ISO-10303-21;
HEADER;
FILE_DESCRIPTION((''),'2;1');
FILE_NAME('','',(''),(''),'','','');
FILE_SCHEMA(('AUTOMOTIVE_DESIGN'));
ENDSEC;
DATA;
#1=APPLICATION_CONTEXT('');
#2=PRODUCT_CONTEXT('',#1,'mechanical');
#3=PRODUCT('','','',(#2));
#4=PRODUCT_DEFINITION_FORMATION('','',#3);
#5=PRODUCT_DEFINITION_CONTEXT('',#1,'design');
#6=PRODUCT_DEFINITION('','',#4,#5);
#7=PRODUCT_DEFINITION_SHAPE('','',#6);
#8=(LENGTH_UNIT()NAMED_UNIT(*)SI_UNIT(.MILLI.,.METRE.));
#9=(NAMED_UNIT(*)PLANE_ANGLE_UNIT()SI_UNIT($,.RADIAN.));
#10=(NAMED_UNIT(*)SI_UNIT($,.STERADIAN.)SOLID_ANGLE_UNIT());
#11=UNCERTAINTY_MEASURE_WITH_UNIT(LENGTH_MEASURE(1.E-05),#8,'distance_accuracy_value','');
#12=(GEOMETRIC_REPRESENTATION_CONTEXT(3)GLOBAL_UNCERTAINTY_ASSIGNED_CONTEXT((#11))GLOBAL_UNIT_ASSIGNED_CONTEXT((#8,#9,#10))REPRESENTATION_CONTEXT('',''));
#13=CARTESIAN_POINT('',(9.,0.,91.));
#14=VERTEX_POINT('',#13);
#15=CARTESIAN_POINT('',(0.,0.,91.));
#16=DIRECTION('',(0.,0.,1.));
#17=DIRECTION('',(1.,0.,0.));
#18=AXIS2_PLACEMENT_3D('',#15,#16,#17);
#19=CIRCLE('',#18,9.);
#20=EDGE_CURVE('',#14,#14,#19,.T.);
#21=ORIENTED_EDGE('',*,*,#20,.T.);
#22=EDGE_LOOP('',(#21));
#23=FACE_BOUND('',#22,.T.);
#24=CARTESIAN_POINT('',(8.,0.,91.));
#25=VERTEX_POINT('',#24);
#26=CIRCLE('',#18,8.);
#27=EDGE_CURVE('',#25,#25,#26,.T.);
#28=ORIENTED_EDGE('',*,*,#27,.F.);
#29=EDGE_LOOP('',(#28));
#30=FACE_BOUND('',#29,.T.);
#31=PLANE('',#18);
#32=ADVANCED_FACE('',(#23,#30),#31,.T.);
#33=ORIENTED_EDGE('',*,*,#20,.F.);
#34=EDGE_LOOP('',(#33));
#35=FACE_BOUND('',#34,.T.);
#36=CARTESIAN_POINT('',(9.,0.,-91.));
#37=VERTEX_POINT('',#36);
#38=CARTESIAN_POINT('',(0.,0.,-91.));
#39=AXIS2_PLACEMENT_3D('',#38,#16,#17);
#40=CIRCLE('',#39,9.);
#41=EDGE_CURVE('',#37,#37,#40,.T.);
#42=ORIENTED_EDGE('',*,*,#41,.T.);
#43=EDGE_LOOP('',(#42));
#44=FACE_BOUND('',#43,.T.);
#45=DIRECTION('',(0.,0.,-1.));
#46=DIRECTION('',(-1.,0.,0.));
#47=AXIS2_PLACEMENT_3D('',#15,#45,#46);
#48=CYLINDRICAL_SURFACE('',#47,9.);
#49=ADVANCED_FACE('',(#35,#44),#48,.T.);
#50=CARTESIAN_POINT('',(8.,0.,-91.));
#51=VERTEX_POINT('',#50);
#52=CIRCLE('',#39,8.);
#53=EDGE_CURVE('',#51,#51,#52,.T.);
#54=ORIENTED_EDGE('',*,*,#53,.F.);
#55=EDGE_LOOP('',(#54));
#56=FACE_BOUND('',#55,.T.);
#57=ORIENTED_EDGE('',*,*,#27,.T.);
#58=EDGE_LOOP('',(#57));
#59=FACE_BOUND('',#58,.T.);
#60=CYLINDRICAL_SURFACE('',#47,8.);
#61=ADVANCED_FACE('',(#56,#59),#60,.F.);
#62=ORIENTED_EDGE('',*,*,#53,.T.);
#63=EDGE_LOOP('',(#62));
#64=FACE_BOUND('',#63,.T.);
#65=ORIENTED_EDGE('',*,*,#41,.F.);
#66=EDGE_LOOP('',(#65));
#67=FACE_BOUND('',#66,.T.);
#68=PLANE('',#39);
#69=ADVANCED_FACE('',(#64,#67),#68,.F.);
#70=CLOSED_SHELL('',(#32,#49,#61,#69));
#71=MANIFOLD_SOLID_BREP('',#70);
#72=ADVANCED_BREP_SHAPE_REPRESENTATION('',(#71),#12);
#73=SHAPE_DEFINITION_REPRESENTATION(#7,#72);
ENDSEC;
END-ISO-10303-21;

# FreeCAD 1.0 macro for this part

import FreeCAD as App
import Part
import Sketcher
from FreeCAD import Vector
Q = App.Units.Quantity

doc = App.newDocument("Part")
params = doc.addObject("Spreadsheet::Sheet", "Params")
for row, (alias, value) in enumerate([
    ("sketch1_diameter", "18 mm"),
    ("sketch1_diameter2", "16 mm"),
    ("pad1_length", "182 mm"),
], start=1):
    params.set(f"A{row}", alias)
    params.set(f"B{row}", "=" + value)
    params.setAlias(f"B{row}", alias)

body = doc.addObject("PartDesign::Body", "Body")

sketch1 = body.newObject("Sketcher::SketchObject", "Sketch")
sketch1.AttachmentSupport = (doc.getObject("XY_Plane"), [""])
sketch1.MapMode = "FlatFace"
sketch1.addGeometry([
    Part.Circle(Vector(0, 0, 0), Vector(0, 0, 1), 9),
    Part.Circle(Vector(0, 0, 0), Vector(0, 0, 1), 8),
], False)
sketch1.addConstraint([
    Sketcher.Constraint("Coincident", 0, 3, -1, 1),
    Sketcher.Constraint("Coincident", 1, 3, -1, 1),
    Sketcher.Constraint("Diameter", 0, Q("18 mm")),
    Sketcher.Constraint("Diameter", 1, Q("16 mm")),
])
sketch1.setExpression("Constraints[2]", "Params.sketch1_diameter")
sketch1.setExpression("Constraints[3]", "Params.sketch1_diameter2")
pad1 = body.newObject("PartDesign::Pad", "Pad")
pad1.Profile = sketch1
pad1.setExpression("Length", "Params.pad1_length")
pad1.Midplane = True

doc.recompute()
